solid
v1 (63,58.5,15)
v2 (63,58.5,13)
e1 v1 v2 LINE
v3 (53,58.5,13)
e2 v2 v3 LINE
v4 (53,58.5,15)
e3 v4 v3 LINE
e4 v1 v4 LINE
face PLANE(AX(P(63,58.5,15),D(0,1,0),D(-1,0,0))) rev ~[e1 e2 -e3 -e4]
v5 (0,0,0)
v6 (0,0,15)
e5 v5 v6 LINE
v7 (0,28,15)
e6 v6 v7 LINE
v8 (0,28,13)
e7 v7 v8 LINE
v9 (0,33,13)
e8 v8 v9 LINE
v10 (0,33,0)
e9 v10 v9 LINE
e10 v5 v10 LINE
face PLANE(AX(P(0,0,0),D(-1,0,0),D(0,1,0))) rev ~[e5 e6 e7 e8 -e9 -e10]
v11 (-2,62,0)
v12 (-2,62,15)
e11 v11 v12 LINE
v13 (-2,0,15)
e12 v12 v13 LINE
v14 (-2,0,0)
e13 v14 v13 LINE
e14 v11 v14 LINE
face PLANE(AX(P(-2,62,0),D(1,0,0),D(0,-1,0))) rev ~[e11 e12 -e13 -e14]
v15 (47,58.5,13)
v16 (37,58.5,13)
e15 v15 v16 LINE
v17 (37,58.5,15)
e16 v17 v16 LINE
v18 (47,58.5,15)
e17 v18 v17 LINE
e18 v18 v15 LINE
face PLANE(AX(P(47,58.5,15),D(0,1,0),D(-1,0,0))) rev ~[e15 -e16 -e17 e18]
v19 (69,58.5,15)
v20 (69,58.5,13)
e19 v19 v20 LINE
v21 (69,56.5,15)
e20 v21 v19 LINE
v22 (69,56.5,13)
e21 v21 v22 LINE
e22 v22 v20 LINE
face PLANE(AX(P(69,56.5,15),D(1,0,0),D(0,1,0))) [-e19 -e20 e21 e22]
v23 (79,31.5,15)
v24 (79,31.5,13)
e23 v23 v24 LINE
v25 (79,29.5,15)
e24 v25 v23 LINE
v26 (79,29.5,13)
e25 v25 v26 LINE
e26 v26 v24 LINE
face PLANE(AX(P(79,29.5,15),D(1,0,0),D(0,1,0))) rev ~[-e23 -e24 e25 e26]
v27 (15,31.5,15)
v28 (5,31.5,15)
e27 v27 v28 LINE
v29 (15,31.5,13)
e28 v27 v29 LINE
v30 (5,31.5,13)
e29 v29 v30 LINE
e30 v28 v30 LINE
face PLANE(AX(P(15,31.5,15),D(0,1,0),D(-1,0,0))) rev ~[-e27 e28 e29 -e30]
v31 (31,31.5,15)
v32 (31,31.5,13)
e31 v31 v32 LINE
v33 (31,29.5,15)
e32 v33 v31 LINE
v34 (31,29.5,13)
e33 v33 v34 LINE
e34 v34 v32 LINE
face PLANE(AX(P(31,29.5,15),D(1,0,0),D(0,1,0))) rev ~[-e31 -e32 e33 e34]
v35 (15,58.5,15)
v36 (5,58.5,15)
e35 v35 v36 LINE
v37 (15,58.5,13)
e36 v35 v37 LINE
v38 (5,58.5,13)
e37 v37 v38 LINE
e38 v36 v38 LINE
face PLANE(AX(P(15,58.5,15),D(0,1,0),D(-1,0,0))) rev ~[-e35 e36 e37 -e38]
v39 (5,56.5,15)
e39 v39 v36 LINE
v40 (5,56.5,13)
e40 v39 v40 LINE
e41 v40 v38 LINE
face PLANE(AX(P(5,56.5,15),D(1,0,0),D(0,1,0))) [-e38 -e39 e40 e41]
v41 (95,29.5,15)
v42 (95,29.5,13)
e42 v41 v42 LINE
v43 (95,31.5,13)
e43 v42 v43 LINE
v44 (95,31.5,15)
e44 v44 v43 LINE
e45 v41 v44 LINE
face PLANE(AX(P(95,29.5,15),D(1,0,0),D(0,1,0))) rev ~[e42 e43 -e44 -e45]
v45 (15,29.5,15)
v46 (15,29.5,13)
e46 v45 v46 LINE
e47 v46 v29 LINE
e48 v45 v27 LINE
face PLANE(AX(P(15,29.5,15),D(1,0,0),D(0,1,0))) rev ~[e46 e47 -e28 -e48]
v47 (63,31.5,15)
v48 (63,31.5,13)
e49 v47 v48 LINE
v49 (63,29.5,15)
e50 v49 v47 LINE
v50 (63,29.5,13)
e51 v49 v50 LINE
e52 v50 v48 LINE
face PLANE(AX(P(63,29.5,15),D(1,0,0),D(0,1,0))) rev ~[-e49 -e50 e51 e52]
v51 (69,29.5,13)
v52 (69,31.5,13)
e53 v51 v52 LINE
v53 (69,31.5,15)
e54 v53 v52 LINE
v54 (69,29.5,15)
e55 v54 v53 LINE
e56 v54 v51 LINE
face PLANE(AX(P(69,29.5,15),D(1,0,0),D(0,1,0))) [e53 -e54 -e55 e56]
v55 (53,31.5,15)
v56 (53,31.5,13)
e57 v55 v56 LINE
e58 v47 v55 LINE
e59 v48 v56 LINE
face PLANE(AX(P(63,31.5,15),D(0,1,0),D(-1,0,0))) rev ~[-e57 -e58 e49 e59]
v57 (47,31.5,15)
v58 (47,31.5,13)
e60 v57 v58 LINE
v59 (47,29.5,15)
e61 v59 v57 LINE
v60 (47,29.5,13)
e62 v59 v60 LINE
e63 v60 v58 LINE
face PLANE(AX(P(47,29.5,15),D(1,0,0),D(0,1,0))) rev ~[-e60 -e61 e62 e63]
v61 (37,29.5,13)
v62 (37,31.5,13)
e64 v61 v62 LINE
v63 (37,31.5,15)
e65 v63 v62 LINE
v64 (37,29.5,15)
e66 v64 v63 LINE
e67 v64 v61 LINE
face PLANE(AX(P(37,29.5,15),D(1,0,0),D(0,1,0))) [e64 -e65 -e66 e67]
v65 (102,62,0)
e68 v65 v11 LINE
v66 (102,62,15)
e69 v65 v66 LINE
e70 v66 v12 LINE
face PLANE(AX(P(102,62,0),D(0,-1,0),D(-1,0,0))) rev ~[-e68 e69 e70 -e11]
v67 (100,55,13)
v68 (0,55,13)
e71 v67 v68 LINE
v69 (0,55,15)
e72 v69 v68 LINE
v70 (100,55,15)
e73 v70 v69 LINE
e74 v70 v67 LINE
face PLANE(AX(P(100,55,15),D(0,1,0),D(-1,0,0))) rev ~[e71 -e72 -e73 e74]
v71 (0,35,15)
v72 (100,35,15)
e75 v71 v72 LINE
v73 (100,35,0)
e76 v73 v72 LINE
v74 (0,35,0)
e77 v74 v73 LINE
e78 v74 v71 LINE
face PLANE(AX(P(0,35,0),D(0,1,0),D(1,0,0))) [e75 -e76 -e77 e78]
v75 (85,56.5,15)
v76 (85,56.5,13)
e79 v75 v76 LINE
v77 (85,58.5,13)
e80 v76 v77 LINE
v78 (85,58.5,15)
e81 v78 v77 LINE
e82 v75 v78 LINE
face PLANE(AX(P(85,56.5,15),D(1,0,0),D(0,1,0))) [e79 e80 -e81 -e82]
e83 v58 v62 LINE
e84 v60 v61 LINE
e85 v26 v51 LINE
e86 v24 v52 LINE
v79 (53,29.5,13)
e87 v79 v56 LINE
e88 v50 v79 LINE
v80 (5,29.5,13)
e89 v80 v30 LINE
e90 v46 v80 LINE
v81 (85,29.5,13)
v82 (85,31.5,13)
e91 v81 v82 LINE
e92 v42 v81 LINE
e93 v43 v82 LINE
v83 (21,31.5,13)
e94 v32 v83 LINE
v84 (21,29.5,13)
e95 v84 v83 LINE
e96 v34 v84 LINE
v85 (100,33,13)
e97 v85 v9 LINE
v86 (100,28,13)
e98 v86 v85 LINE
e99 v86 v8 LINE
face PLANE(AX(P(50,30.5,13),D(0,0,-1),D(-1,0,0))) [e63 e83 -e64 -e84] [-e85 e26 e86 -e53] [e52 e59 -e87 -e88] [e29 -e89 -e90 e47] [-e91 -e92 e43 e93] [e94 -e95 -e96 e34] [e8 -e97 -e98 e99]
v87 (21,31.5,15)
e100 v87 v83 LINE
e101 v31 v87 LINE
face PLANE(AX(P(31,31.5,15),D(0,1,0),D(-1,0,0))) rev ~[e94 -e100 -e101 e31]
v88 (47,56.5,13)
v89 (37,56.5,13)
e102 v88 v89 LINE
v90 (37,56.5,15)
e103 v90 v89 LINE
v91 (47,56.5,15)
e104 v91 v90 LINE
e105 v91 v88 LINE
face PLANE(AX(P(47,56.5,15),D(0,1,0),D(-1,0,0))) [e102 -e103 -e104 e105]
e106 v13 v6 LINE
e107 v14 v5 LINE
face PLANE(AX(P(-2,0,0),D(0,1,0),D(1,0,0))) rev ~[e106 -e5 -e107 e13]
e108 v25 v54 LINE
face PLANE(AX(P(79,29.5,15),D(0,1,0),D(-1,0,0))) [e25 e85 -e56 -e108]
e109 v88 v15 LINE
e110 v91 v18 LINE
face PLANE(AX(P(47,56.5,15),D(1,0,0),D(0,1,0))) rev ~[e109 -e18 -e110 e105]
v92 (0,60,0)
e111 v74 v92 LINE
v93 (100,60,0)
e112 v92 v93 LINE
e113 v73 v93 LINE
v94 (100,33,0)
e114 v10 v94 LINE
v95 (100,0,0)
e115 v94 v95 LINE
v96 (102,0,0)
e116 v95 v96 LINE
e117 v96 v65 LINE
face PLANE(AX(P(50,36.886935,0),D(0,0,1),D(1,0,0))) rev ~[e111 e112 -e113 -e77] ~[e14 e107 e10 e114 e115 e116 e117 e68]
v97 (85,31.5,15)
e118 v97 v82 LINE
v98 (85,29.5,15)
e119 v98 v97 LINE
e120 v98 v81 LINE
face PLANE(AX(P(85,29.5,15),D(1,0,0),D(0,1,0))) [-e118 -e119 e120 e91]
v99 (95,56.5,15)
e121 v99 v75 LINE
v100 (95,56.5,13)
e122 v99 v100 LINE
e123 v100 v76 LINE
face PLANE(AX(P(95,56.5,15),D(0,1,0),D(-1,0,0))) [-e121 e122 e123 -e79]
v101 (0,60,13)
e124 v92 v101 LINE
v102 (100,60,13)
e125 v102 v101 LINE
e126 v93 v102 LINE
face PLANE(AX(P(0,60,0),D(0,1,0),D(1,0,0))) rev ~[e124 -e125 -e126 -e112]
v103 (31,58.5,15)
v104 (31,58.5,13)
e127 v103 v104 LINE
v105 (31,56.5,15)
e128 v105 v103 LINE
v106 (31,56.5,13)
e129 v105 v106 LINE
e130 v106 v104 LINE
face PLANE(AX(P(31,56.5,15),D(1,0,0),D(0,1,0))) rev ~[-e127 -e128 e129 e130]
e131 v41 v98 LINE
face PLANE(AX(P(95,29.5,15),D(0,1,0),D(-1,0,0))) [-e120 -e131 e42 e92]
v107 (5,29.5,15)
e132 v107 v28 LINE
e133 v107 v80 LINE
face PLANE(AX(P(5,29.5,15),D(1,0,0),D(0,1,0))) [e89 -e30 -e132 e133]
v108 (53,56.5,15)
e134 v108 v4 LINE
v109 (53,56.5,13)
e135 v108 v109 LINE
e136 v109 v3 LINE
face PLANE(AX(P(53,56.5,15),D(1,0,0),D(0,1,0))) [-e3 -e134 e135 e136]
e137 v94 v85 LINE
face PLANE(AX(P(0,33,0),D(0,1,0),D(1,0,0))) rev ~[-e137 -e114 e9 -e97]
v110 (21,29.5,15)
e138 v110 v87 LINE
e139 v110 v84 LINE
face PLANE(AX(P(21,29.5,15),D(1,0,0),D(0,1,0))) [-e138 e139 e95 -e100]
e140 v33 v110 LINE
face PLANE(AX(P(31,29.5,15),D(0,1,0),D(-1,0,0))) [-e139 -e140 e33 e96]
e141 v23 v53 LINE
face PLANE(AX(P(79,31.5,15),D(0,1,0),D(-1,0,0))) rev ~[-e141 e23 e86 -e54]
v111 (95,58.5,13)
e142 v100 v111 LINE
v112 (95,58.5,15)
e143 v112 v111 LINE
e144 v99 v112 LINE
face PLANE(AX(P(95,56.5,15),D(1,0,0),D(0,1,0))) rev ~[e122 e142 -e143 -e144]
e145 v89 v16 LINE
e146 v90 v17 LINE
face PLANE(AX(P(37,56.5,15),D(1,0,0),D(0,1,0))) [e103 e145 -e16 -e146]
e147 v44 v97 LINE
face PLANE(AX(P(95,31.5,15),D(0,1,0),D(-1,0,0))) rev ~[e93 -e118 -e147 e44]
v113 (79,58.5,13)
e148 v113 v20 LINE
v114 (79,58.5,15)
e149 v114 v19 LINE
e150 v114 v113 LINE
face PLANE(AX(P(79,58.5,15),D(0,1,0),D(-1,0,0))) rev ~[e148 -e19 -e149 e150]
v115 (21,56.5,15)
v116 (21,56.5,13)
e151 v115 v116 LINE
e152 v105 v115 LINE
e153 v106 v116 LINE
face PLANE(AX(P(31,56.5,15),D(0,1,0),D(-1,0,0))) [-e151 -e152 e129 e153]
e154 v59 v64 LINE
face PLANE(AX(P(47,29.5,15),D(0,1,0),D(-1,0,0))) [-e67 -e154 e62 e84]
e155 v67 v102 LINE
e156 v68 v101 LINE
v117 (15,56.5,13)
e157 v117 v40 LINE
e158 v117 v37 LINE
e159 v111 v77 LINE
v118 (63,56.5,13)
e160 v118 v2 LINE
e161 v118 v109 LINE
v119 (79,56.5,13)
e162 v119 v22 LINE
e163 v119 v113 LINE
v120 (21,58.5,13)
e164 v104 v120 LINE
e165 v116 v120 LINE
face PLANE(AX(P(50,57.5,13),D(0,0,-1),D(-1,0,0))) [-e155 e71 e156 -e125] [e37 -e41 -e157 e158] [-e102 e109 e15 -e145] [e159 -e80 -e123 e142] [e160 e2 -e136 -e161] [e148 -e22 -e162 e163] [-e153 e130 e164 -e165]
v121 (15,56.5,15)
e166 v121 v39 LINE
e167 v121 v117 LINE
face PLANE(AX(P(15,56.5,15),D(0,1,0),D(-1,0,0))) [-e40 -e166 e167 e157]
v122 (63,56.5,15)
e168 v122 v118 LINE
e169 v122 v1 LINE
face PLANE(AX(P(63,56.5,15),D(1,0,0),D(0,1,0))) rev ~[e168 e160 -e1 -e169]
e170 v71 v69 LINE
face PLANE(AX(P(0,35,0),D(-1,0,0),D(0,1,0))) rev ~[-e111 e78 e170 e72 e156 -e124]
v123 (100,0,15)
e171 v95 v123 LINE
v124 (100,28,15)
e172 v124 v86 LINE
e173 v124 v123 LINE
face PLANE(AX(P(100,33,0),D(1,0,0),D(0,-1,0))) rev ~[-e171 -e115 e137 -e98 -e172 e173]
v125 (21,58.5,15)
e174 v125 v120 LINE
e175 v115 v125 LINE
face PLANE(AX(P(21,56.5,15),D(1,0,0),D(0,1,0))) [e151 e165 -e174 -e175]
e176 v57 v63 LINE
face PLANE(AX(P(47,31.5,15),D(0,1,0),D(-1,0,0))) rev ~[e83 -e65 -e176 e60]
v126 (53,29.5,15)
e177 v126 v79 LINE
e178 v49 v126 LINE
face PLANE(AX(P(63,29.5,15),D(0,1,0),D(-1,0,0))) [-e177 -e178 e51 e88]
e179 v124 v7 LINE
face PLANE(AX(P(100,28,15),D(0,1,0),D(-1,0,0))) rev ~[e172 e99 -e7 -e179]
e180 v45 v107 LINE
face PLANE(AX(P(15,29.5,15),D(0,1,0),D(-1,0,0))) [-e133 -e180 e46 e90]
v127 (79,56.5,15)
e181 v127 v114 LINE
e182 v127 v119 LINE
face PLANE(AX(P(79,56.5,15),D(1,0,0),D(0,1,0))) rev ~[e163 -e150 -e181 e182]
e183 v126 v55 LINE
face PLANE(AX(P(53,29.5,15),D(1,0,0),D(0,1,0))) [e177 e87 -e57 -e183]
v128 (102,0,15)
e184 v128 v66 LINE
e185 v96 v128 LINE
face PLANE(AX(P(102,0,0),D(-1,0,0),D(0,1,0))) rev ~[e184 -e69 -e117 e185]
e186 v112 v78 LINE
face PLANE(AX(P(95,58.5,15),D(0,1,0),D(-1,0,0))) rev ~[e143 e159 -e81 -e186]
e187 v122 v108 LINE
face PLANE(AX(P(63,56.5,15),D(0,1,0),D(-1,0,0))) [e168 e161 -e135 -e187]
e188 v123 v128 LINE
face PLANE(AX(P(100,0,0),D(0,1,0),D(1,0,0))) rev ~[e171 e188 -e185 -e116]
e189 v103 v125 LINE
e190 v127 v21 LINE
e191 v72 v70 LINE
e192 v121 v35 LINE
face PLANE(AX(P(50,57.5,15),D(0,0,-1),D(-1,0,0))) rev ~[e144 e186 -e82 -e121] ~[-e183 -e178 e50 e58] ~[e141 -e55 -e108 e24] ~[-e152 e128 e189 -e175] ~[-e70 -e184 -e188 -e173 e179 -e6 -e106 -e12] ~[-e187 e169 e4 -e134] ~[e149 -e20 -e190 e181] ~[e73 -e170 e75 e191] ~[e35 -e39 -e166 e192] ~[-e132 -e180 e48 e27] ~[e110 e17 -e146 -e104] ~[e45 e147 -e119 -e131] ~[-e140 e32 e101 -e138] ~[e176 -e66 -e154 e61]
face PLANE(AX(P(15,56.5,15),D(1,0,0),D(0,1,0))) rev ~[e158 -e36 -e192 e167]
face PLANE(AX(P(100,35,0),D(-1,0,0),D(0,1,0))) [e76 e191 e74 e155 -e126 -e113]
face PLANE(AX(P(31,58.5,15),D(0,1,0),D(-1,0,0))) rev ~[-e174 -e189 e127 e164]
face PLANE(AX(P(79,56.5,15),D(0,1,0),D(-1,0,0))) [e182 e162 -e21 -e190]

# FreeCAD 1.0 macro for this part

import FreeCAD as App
import Part
import Sketcher

V = App.Vector


def add_polygon(sketch, points):
    """Adds a closed chain of lines whose ends are joined by coincident constraints."""
    first, n = sketch.GeometryCount, len(points)
    for a, b in zip(points, points[1:] + points[:1]):
        sketch.addGeometry(Part.LineSegment(App.Vector(*a, 0), App.Vector(*b, 0)), False)
    for i in range(n):
        sketch.addConstraint(Sketcher.Constraint("Coincident", first + i, 2, first + (i + 1) % n, 1))

doc = App.newDocument("Part")
body = doc.addObject("PartDesign::Body", "Body")

# Sketch on XY plane
sketch1 = body.newObject("Sketcher::SketchObject", "Sketch")
sketch1.AttachmentSupport = (doc.getObject("XY_Plane"), [""])
sketch1.MapMode = "FlatFace"
add_polygon(sketch1, [(0, 0), (0, 33), (100, 33), (100, 0), (102, 0), (102, 62), (-2, 62), (-2, 0)])  # lines 0-7
add_polygon(sketch1, [(100, 35), (0, 35), (0, 60), (100, 60)])  # lines 8-11
sketch1.addConstraint([
    Sketcher.Constraint("Vertical", 0),
    Sketcher.Constraint("Horizontal", 1),
    Sketcher.Constraint("Vertical", 2),
    Sketcher.Constraint("Horizontal", 3),
    Sketcher.Constraint("Vertical", 4),
    Sketcher.Constraint("Horizontal", 5),
    Sketcher.Constraint("Vertical", 6),
    Sketcher.Constraint("Horizontal", 7),
    Sketcher.Constraint("Horizontal", 8),
    Sketcher.Constraint("Vertical", 9),
    Sketcher.Constraint("Horizontal", 10),
    Sketcher.Constraint("Vertical", 11),
    Sketcher.Constraint("Coincident", 7, 2, -1, 1),
    Sketcher.Constraint("PointOnObject", 2, 2, -1),
    Sketcher.Constraint("PointOnObject", 8, 2, -2),
    Sketcher.Constraint("Vertical", 2, 2, 10, 2),
    Sketcher.Constraint("Equal", 3, 7),
    Sketcher.Constraint("DistanceX", 1, 1, 1, 2, 100.0),
    Sketcher.Constraint("DistanceX", 3, 1, 3, 2, 2.0),
    Sketcher.Constraint("DistanceY", 0, 1, 0, 2, 33.0),
    Sketcher.Constraint("DistanceY", 4, 1, 4, 2, 62.0),
    Sketcher.Constraint("DistanceY", 9, 1, 9, 2, 25.0),
    Sketcher.Constraint("DistanceY", -1, 1, 8, 2, 35.0),
])
pad1 = body.newObject("PartDesign::Pad", "Pad")
pad1.Profile = sketch1
pad1.Length = 15

# Sketch on XY plane
sketch2 = body.newObject("Sketcher::SketchObject", "Sketch001")
sketch2.AttachmentSupport = (doc.getObject("XY_Plane"), [""])
sketch2.MapMode = "FlatFace"
sketch2.AttachmentOffset = App.Placement(V(0, 0, 15), App.Rotation())
add_polygon(sketch2, [(100, 60), (100, 55), (0, 55), (0, 60)])  # lines 0-3
add_polygon(sketch2, [(85, 56.5), (95, 56.5), (95, 58.5), (85, 58.5)])  # lines 4-7
add_polygon(sketch2, [(69, 56.5), (79, 56.5), (79, 58.5), (69, 58.5)])  # lines 8-11
add_polygon(sketch2, [(53, 56.5), (63, 56.5), (63, 58.5), (53, 58.5)])  # lines 12-15
add_polygon(sketch2, [(37, 56.5), (47, 56.5), (47, 58.5), (37, 58.5)])  # lines 16-19
add_polygon(sketch2, [(21, 56.5), (31, 56.5), (31, 58.5), (21, 58.5)])  # lines 20-23
add_polygon(sketch2, [(5, 56.5), (15, 56.5), (15, 58.5), (5, 58.5)])  # lines 24-27
add_polygon(sketch2, [(100, 33), (100, 28), (0, 28), (0, 33)])  # lines 28-31
add_polygon(sketch2, [(85, 29.5), (95, 29.5), (95, 31.5), (85, 31.5)])  # lines 32-35
add_polygon(sketch2, [(69, 29.5), (79, 29.5), (79, 31.5), (69, 31.5)])  # lines 36-39
add_polygon(sketch2, [(53, 29.5), (63, 29.5), (63, 31.5), (53, 31.5)])  # lines 40-43
add_polygon(sketch2, [(37, 29.5), (47, 29.5), (47, 31.5), (37, 31.5)])  # lines 44-47
add_polygon(sketch2, [(21, 29.5), (31, 29.5), (31, 31.5), (21, 31.5)])  # lines 48-51
add_polygon(sketch2, [(5, 29.5), (15, 29.5), (15, 31.5), (5, 31.5)])  # lines 52-55
sketch2.addConstraint([
    Sketcher.Constraint("Vertical", 0),
    Sketcher.Constraint("Horizontal", 1),
    Sketcher.Constraint("Vertical", 2),
    Sketcher.Constraint("Horizontal", 3),
    Sketcher.Constraint("Horizontal", 4),
    Sketcher.Constraint("Vertical", 5),
    Sketcher.Constraint("Horizontal", 6),
    Sketcher.Constraint("Vertical", 7),
    Sketcher.Constraint("Horizontal", 8),
    Sketcher.Constraint("Vertical", 9),
    Sketcher.Constraint("Horizontal", 10),
    Sketcher.Constraint("Vertical", 11),
    Sketcher.Constraint("Horizontal", 12),
    Sketcher.Constraint("Vertical", 13),
    Sketcher.Constraint("Horizontal", 14),
    Sketcher.Constraint("Vertical", 15),
    Sketcher.Constraint("Horizontal", 16),
    Sketcher.Constraint("Vertical", 17),
    Sketcher.Constraint("Horizontal", 18),
    Sketcher.Constraint("Vertical", 19),
    Sketcher.Constraint("Horizontal", 20),
    Sketcher.Constraint("Vertical", 21),
    Sketcher.Constraint("Horizontal", 22),
    Sketcher.Constraint("Vertical", 23),
    Sketcher.Constraint("Horizontal", 24),
    Sketcher.Constraint("Vertical", 25),
    Sketcher.Constraint("Horizontal", 26),
    Sketcher.Constraint("Vertical", 27),
    Sketcher.Constraint("Vertical", 28),
    Sketcher.Constraint("Horizontal", 29),
    Sketcher.Constraint("Vertical", 30),
    Sketcher.Constraint("Horizontal", 31),
    Sketcher.Constraint("Horizontal", 32),
    Sketcher.Constraint("Vertical", 33),
    Sketcher.Constraint("Horizontal", 34),
    Sketcher.Constraint("Vertical", 35),
    Sketcher.Constraint("Horizontal", 36),
    Sketcher.Constraint("Vertical", 37),
    Sketcher.Constraint("Horizontal", 38),
    Sketcher.Constraint("Vertical", 39),
    Sketcher.Constraint("Horizontal", 40),
    Sketcher.Constraint("Vertical", 41),
    Sketcher.Constraint("Horizontal", 42),
    Sketcher.Constraint("Vertical", 43),
    Sketcher.Constraint("Horizontal", 44),
    Sketcher.Constraint("Vertical", 45),
    Sketcher.Constraint("Horizontal", 46),
    Sketcher.Constraint("Vertical", 47),
    Sketcher.Constraint("Horizontal", 48),
    Sketcher.Constraint("Vertical", 49),
    Sketcher.Constraint("Horizontal", 50),
    Sketcher.Constraint("Vertical", 51),
    Sketcher.Constraint("Horizontal", 52),
    Sketcher.Constraint("Vertical", 53),
    Sketcher.Constraint("Horizontal", 54),
    Sketcher.Constraint("Vertical", 55),
    Sketcher.Constraint("PointOnObject", 1, 2, -2),
    Sketcher.Constraint("PointOnObject", 29, 2, -2),
    Sketcher.Constraint("Horizontal", 7, 2, 8, 2),
    Sketcher.Constraint("Horizontal", 6, 2, 9, 2),
    Sketcher.Constraint("Horizontal", 11, 2, 12, 2),
    Sketcher.Constraint("Horizontal", 10, 2, 13, 2),
    Sketcher.Constraint("Horizontal", 15, 2, 16, 2),
    Sketcher.Constraint("Horizontal", 14, 2, 17, 2),
    Sketcher.Constraint("Horizontal", 19, 2, 20, 2),
    Sketcher.Constraint("Horizontal", 18, 2, 21, 2),
    Sketcher.Constraint("Horizontal", 23, 2, 24, 2),
    Sketcher.Constraint("Horizontal", 22, 2, 25, 2),
    Sketcher.Constraint("Horizontal", 35, 2, 36, 2),
    Sketcher.Constraint("Horizontal", 34, 2, 37, 2),
    Sketcher.Constraint("Horizontal", 39, 2, 40, 2),
    Sketcher.Constraint("Horizontal", 38, 2, 41, 2),
    Sketcher.Constraint("Horizontal", 43, 2, 44, 2),
    Sketcher.Constraint("Horizontal", 42, 2, 45, 2),
    Sketcher.Constraint("Horizontal", 47, 2, 48, 2),
    Sketcher.Constraint("Horizontal", 46, 2, 49, 2),
    Sketcher.Constraint("Horizontal", 51, 2, 52, 2),
    Sketcher.Constraint("Horizontal", 50, 2, 53, 2),
    Sketcher.Constraint("Vertical", 3, 2, 28, 2),
    Sketcher.Constraint("Vertical", 5, 2, 32, 2),
    Sketcher.Constraint("Vertical", 7, 2, 34, 2),
    Sketcher.Constraint("Vertical", 9, 2, 36, 2),
    Sketcher.Constraint("Vertical", 11, 2, 38, 2),
    Sketcher.Constraint("Vertical", 13, 2, 40, 2),
    Sketcher.Constraint("Vertical", 15, 2, 42, 2),
    Sketcher.Constraint("Vertical", 17, 2, 44, 2),
    Sketcher.Constraint("Vertical", 19, 2, 46, 2),
    Sketcher.Constraint("Vertical", 21, 2, 48, 2),
    Sketcher.Constraint("Vertical", 23, 2, 50, 2),
    Sketcher.Constraint("Vertical", 25, 2, 52, 2),
    Sketcher.Constraint("Vertical", 27, 2, 54, 2),
    Sketcher.Constraint("Equal", 6, 8),
    Sketcher.Constraint("Equal", 10, 12),
    Sketcher.Constraint("Equal", 14, 16),
    Sketcher.Constraint("Equal", 18, 20),
    Sketcher.Constraint("Equal", 22, 24),
    Sketcher.Constraint("Equal", 2, 28),
    Sketcher.Constraint("Equal", 27, 33),
    Sketcher.Constraint("DistanceX", 1, 2, 1, 1, 100.0),
    Sketcher.Constraint("DistanceX", 4, 1, 4, 2, 10.0),
    Sketcher.Constraint("DistanceY", 0, 2, 0, 1, 5.0),
    Sketcher.Constraint("DistanceY", 5, 1, 5, 2, 2.0),
    Sketcher.Constraint("DistanceY", -1, 1, 0, 2, 55.0),
    Sketcher.Constraint("DistanceX", -1, 1, 4, 2, 95.0),
    Sketcher.Constraint("DistanceX", -1, 1, 8, 2, 79.0),
    Sketcher.Constraint("DistanceX", -1, 1, 12, 2, 63.0),
    Sketcher.Constraint("DistanceX", -1, 1, 16, 2, 47.0),
    Sketcher.Constraint("DistanceX", -1, 1, 20, 2, 31.0),
    Sketcher.Constraint("DistanceX", -1, 1, 24, 2, 15.0),
    Sketcher.Constraint("DistanceY", -1, 1, 28, 2, 28.0),
    Sketcher.Constraint("DistanceY", 32, 2, 4, 2, 27.0),
    Sketcher.Constraint("DistanceY", -1, 1, 4, 2, 56.5),
])
pad2 = body.newObject("PartDesign::Pad", "Pad001")
pad2.Profile = sketch2
pad2.Length = 2
pad2.Reversed = True

doc.recompute()
